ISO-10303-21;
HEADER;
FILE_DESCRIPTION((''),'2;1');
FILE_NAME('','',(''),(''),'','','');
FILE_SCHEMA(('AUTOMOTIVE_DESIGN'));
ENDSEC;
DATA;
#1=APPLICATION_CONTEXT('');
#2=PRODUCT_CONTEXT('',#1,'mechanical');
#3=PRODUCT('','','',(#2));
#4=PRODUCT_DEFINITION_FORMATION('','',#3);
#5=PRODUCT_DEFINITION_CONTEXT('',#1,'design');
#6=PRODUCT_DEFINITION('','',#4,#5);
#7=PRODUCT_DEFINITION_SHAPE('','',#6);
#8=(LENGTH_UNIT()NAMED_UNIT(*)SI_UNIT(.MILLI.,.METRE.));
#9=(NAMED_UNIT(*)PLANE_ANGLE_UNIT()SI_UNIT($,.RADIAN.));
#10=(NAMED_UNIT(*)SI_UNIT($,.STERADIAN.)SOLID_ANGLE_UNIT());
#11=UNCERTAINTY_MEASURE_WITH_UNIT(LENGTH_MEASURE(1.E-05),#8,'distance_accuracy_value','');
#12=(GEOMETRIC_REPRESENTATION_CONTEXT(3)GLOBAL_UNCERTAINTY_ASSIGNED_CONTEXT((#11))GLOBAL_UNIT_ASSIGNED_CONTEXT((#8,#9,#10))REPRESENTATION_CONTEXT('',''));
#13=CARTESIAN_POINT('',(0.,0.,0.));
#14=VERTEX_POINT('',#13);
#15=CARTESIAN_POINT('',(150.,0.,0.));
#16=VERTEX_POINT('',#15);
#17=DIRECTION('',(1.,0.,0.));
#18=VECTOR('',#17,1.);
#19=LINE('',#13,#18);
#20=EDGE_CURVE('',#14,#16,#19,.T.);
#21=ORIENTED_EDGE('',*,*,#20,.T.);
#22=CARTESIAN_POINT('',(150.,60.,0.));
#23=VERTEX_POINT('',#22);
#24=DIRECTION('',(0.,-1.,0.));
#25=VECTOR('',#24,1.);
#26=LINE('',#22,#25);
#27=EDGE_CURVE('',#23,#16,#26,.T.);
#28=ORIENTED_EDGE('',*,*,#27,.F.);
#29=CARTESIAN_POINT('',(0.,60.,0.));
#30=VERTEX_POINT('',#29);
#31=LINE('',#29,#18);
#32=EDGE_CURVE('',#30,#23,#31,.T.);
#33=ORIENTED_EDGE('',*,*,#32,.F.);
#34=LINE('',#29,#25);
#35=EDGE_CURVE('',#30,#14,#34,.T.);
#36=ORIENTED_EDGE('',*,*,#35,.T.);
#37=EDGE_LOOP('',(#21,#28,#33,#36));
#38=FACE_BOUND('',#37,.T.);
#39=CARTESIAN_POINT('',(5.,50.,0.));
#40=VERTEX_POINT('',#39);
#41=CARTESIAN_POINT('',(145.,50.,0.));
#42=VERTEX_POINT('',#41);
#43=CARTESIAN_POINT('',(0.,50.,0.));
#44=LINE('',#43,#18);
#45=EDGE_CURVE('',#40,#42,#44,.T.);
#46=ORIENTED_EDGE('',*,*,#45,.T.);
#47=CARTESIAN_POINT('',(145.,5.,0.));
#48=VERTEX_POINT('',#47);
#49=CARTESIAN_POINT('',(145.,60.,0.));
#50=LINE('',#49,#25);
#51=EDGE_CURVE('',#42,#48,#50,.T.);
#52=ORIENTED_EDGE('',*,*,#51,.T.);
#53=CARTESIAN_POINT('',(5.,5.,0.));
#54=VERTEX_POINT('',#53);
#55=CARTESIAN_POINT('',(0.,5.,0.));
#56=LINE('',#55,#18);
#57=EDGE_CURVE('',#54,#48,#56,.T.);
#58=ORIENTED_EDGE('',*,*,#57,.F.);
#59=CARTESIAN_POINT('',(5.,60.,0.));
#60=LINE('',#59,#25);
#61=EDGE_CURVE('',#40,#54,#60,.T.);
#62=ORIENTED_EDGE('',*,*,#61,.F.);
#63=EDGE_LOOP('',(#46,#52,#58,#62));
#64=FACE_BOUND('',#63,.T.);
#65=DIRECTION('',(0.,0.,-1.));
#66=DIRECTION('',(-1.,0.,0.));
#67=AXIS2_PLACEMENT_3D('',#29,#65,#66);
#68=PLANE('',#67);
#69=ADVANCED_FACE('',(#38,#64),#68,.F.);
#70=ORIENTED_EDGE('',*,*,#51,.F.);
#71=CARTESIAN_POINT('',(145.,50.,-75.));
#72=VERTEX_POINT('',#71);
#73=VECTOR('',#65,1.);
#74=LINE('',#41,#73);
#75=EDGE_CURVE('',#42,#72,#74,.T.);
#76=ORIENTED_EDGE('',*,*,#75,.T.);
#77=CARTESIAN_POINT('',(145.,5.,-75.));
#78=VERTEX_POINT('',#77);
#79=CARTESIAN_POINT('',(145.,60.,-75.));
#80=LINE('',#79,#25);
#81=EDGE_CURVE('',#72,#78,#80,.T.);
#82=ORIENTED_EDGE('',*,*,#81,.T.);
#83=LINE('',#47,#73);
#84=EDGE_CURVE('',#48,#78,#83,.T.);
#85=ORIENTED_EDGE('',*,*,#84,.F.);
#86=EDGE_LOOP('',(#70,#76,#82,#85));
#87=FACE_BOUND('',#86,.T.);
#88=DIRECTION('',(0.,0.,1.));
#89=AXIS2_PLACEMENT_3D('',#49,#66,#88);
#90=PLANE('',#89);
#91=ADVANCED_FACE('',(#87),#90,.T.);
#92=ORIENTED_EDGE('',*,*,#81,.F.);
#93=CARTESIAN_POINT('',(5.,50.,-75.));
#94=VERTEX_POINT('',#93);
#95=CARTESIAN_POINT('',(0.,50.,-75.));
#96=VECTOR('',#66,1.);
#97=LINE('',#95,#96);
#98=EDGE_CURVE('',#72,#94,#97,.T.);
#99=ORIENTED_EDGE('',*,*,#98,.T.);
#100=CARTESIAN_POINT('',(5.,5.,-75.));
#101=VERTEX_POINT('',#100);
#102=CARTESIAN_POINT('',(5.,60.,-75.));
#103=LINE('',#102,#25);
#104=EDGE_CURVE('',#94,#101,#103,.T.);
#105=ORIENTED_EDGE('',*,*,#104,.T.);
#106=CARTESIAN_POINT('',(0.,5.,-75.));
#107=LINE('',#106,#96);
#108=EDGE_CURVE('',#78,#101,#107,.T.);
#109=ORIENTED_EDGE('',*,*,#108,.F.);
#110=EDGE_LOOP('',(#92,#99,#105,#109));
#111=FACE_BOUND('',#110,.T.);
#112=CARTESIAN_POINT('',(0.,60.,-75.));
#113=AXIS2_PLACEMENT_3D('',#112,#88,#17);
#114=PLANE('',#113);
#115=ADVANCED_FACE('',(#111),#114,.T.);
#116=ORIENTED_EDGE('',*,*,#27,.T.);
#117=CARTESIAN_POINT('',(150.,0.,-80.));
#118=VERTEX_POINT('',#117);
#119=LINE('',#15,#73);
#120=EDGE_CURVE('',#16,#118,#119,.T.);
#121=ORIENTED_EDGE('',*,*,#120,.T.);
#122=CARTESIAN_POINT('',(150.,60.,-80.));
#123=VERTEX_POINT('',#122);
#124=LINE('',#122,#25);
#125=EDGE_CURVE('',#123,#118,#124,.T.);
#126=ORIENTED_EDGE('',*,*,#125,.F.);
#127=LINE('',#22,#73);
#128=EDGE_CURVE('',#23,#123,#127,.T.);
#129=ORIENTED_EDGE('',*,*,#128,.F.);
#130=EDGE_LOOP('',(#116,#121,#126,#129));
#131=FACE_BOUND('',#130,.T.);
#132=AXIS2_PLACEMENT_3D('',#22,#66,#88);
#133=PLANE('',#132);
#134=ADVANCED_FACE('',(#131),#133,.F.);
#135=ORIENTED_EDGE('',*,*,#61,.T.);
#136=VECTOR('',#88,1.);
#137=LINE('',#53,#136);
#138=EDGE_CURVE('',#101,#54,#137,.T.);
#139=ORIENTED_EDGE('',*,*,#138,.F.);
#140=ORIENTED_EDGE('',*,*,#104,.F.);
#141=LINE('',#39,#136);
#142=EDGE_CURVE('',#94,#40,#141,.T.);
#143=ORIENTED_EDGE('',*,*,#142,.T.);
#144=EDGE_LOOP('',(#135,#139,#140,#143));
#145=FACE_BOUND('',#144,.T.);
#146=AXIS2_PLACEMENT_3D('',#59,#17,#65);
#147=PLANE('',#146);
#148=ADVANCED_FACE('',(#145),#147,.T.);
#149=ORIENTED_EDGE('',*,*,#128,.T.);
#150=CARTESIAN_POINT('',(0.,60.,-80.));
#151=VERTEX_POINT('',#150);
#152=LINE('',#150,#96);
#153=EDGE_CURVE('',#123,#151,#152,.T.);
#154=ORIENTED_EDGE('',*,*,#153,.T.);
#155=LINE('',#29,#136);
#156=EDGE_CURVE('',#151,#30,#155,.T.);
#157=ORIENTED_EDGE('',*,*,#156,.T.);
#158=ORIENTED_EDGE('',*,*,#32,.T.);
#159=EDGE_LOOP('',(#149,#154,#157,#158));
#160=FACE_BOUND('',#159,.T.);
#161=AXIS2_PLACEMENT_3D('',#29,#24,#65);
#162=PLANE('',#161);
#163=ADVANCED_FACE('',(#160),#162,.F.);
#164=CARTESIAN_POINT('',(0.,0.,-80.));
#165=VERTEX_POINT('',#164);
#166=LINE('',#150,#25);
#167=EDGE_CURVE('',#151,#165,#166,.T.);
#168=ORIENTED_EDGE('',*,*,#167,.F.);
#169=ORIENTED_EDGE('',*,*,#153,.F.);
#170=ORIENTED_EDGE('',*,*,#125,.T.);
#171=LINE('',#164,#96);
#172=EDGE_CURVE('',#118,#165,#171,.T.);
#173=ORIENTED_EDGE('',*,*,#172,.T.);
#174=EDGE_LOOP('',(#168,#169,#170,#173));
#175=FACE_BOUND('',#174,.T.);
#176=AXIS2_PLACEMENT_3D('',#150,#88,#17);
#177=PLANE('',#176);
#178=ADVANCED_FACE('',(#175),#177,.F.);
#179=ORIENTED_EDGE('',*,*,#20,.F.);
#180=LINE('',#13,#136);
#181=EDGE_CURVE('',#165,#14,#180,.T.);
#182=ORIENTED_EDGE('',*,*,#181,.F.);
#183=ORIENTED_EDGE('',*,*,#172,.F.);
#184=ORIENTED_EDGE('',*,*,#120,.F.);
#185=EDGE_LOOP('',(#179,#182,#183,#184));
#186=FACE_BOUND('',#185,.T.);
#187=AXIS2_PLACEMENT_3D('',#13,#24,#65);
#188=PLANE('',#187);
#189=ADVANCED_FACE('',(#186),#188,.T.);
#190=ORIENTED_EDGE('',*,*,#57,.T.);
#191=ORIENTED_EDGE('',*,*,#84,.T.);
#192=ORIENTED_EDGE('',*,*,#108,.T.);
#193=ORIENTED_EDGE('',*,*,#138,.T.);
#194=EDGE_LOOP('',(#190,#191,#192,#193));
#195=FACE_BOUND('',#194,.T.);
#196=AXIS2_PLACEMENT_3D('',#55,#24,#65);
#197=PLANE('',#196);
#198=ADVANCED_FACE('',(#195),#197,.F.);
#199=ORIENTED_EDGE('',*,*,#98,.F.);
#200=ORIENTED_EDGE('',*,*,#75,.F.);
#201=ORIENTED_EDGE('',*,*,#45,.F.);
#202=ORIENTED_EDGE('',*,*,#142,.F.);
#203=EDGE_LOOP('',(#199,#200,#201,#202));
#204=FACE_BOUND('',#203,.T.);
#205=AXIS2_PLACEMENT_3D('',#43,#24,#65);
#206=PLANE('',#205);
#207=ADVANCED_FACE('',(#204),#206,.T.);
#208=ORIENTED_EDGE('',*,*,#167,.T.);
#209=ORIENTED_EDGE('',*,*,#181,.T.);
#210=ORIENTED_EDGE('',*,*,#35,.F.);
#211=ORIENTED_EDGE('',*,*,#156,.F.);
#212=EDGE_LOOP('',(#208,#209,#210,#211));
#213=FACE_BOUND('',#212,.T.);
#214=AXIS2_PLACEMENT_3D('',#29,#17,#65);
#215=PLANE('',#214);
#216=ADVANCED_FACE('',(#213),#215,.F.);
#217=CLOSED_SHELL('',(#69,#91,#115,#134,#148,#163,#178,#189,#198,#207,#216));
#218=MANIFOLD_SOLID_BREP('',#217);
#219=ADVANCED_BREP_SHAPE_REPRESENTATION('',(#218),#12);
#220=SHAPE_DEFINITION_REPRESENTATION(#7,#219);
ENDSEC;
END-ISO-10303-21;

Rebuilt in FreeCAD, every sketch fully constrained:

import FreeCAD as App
import Part
import Sketcher

V = App.Vector


def faces_at(feature, points):
    """Names of the faces that lie closest to the given points."""
    faces = feature.Shape.Faces
    near = lambda p: min(range(len(faces)), key=lambda i: faces[i].distToShape(Part.Vertex(*p))[0])
    return sorted({f"Face{near(p) + 1}" for p in points})


def add_polygon(sketch, points):
    """Adds a closed chain of lines whose ends are joined by coincident constraints."""
    first, n = sketch.GeometryCount, len(points)
    for a, b in zip(points, points[1:] + points[:1]):
        sketch.addGeometry(Part.LineSegment(App.Vector(*a, 0), App.Vector(*b, 0)), False)
    for i in range(n):
        sketch.addConstraint(Sketcher.Constraint("Coincident", first + i, 2, first + (i + 1) % n, 1))

doc = App.newDocument("Part")
body = doc.addObject("PartDesign::Body", "Body")

sketch1 = body.newObject("Sketcher::SketchObject", "Sketch")
sketch1.AttachmentSupport = (doc.getObject("XZ_Plane"), [""])
sketch1.MapMode = "FlatFace"
add_polygon(sketch1, [(0, -80), (0, 0), (150, 0), (150, -80)])
sketch1.addConstraint(Sketcher.Constraint("Vertical", 0))
sketch1.addConstraint(Sketcher.Constraint("Horizontal", 1))
sketch1.addConstraint(Sketcher.Constraint("Vertical", 2))
sketch1.addConstraint(Sketcher.Constraint("Horizontal", 3))
sketch1.addConstraint(Sketcher.Constraint("Coincident", 0, 2, -1, 1))
sketch1.addConstraint(Sketcher.Constraint("DistanceX", 1, 1, 1, 2, 150.0))
sketch1.addConstraint(Sketcher.Constraint("DistanceY", 0, 1, 0, 2, 80.0))
pad1 = body.newObject("PartDesign::Pad", "Pad")
pad1.Profile = sketch1
pad1.Length = 60
pad1.Reversed = True
doc.recompute()

thickness = body.newObject("PartDesign::Thickness", "Thickness")
thickness.Base = (pad1, faces_at(pad1, [(75, 30, 0)]))
thickness.Value = 5
thickness.Reversed = True
thickness.Join = "Intersection"

sketch2 = body.newObject("Sketcher::SketchObject", "Sketch001")
sketch2.AttachmentSupport = (doc.getObject("XZ_Plane"), [""])
sketch2.MapMode = "FlatFace"
sketch2.AttachmentOffset = App.Placement(V(0, 0, -55), App.Rotation())
add_polygon(sketch2, [(145, -75), (5, -75), (5, 0), (145, 0)])
sketch2.addConstraint(Sketcher.Constraint("Horizontal", 0))
sketch2.addConstraint(Sketcher.Constraint("Vertical", 1))
sketch2.addConstraint(Sketcher.Constraint("Horizontal", 2))
sketch2.addConstraint(Sketcher.Constraint("Vertical", 3))
sketch2.addConstraint(Sketcher.Constraint("PointOnObject", 1, 2, -1))
sketch2.addConstraint(Sketcher.Constraint("DistanceX", 0, 2, 0, 1, 140.0))
sketch2.addConstraint(Sketcher.Constraint("DistanceY", 1, 1, 1, 2, 75.0))
sketch2.addConstraint(Sketcher.Constraint("DistanceX", -1, 1, 0, 2, 5.0))
pad2 = body.newObject("PartDesign::Pad", "Pad001")
pad2.Profile = sketch2
pad2.Length = 5

doc.recompute()
